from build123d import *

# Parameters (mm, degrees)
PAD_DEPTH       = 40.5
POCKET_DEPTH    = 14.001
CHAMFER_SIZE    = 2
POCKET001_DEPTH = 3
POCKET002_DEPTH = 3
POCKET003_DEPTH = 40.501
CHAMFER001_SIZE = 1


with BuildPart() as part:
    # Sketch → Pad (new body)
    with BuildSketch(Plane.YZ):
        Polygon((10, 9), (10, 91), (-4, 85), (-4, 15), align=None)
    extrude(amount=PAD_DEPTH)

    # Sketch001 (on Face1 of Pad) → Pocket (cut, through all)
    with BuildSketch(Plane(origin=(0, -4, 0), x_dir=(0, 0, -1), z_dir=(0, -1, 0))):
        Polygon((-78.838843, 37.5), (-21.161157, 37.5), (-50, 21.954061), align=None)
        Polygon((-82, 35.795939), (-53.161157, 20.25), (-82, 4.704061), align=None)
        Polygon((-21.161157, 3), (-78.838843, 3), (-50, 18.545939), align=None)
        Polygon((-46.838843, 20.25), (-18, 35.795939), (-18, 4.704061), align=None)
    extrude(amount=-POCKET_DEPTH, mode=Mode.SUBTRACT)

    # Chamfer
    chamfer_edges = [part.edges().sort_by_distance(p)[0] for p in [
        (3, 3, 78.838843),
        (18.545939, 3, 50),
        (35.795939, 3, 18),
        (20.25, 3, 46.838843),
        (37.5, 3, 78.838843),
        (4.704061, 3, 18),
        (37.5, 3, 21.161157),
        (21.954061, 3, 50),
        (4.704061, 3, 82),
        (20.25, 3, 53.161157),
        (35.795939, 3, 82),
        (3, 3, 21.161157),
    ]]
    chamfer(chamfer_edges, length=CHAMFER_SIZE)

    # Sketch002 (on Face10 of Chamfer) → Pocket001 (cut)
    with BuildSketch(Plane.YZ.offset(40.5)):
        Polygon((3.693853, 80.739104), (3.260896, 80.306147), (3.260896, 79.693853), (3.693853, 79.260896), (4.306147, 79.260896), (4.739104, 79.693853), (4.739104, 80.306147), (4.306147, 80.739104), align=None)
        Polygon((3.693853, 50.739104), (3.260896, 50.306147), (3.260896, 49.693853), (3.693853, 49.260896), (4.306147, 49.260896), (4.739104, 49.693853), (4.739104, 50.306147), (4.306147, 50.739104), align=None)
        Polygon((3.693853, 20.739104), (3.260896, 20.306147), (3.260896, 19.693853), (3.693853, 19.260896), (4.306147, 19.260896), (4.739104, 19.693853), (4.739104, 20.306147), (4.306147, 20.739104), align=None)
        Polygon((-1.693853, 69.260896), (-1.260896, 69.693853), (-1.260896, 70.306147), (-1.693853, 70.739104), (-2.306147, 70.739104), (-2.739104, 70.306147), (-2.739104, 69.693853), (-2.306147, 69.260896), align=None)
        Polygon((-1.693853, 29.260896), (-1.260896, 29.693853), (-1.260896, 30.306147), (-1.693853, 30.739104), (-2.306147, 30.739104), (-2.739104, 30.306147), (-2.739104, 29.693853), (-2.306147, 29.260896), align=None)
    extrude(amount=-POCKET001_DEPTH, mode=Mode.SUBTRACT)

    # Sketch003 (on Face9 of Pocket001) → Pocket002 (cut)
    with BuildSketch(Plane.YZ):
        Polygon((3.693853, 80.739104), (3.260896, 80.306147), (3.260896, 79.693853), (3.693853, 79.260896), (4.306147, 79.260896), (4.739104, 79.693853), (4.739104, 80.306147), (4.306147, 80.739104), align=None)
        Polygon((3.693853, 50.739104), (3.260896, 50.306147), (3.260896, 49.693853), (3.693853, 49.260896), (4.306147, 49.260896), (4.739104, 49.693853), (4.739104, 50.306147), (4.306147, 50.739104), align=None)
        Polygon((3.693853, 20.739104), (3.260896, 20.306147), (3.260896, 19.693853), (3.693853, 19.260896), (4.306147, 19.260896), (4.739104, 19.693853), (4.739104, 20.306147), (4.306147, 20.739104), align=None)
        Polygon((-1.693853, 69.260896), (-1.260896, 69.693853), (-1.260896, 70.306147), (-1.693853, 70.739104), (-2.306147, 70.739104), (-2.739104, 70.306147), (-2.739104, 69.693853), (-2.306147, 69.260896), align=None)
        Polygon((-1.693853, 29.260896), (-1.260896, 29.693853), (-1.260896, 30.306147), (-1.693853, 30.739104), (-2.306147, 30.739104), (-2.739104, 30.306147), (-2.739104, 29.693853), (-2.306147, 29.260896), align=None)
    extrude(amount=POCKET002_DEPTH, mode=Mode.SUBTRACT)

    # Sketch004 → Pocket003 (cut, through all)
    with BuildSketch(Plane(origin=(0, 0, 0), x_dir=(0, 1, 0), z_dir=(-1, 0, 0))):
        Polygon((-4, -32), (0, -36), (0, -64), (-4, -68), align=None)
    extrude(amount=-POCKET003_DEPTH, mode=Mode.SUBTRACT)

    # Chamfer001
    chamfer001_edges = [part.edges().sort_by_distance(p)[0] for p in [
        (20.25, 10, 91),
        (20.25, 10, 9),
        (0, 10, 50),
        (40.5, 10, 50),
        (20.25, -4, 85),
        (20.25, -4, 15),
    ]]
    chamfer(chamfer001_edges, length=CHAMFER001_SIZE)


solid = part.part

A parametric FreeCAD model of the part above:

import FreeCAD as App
import Part
import Sketcher
from FreeCAD import Vector
Q = App.Units.Quantity


def edges_at(feature, points):
    """Names of the edges that pass closest to the given points."""
    edges = feature.Shape.Edges
    near = lambda p: min(range(len(edges)), key=lambda i: edges[i].distToShape(Part.Vertex(*p))[0])
    return sorted({f"Edge{near(p) + 1}" for p in points})


def add_polygon(sketch, points):
    """Adds a closed chain of lines whose ends are joined by coincident constraints."""
    first, n = sketch.GeometryCount, len(points)
    for a, b in zip(points, points[1:] + points[:1]):
        sketch.addGeometry(Part.LineSegment(App.Vector(*a, 0), App.Vector(*b, 0)), False)
    for i in range(n):
        sketch.addConstraint(Sketcher.Constraint("Coincident", first + i, 2, first + (i + 1) % n, 1))

doc = App.newDocument("Part")
params = doc.addObject("Spreadsheet::Sheet", "Params")
for row, (alias, value) in enumerate([
    ("sketch1_height", "82 mm"),
    ("sketch1_height2", "70 mm"),
    ("pad1_length", "40.5 mm"),
    ("chamfer_size", "2 mm"),
    ("pocket2_length", "3 mm"),
    ("pocket3_length", "3 mm"),
    ("sketch5_height", "36 mm"),
    ("sketch5_height2", "28 mm"),
    ("chamfer2_size", "1 mm"),
], start=1):
    params.set(f"A{row}", alias)
    params.set(f"B{row}", "=" + value)
    params.setAlias(f"B{row}", alias)

body = doc.addObject("PartDesign::Body", "Body")

# Sketch on YZ plane
sketch1 = doc.addObject("Sketcher::SketchObject", "Sketch")
body.addObject(sketch1)
sketch1.AttachmentSupport = (doc.YZ_Plane, [""])
sketch1.MapMode = "FlatFace"
add_polygon(sketch1, [(10, 9), (10, 91), (-4, 85), (-4, 15)])  # lines 0-3
sketch1.addConstraint([
    Sketcher.Constraint("Vertical", 0),
    Sketcher.Constraint("Vertical", 2),
    Sketcher.Constraint("Equal", 1, 3),
    Sketcher.Constraint("DistanceY", 0, 1, 0, 2, Q("82 mm")),
    Sketcher.Constraint("DistanceY", 2, 2, 2, 1, Q("70 mm")),
    Sketcher.Constraint("DistanceX", -1, 1, 0, 2, Q("10 mm")),
    Sketcher.Constraint("DistanceY", -1, 1, 0, 2, Q("91 mm")),
    Sketcher.Constraint("DistanceX", 1, 2, -1, 1, Q("4 mm")),
])
sketch1.setExpression("Constraints[7]", "Params.sketch1_height")
sketch1.setExpression("Constraints[8]", "Params.sketch1_height2")
pad1 = doc.addObject("PartDesign::Pad", "Pad")
body.addObject(pad1)
pad1.Profile = sketch1
pad1.setExpression("Length", "Params.pad1_length")

# Sketch on XZ plane
sketch2 = doc.addObject("Sketcher::SketchObject", "Sketch001")
body.addObject(sketch2)
sketch2.AttachmentSupport = (doc.XZ_Plane, [""])
sketch2.MapMode = "FlatFace"
sketch2.AttachmentOffset = App.Placement(Vector(0, 0, 4), App.Rotation())
add_polygon(sketch2, [(38, 21), (38, 79), (22, 50)])  # lines 0-2
add_polygon(sketch2, [(20, 53), (36, 82), (5, 82)])  # lines 3-5
add_polygon(sketch2, [(3, 79), (3, 21), (19, 50)])  # lines 6-8
add_polygon(sketch2, [(36, 18), (20, 47), (5, 18)])  # lines 9-11
sketch2.addConstraint([
    Sketcher.Constraint("Vertical", 0),
    Sketcher.Constraint("Horizontal", 4),
    Sketcher.Constraint("Vertical", 6),
    Sketcher.Constraint("Horizontal", 11),
    Sketcher.Constraint("Parallel", 1, 3),
    Sketcher.Constraint("Parallel", 2, 5),
    Sketcher.Constraint("Parallel", 3, 7),
    Sketcher.Constraint("Parallel", 5, 8),
    Sketcher.Constraint("Parallel", 8, 9),
    Sketcher.Constraint("Parallel", 7, 10),
    Sketcher.Constraint("Horizontal", 2, 2, 6, 2),
    Sketcher.Constraint("Horizontal", 1, 2, 7, 2),
    Sketcher.Constraint("Horizontal", 0, 2, 8, 2),
    Sketcher.Constraint("Vertical", 5, 2, 9, 2),
    Sketcher.Constraint("Vertical", 4, 2, 10, 2),
    Sketcher.Constraint("Equal", 2, 3),
    Sketcher.Constraint("DistanceY", -1, 1, 1, 2, Q("50 mm")),
    Sketcher.Constraint("DistanceY", -1, 1, 3, 2, Q("82 mm")),
    Sketcher.Constraint("DistanceX", -1, 1, 6, 2, Q("3 mm")),
    Sketcher.Constraint("DistanceY", -1, 1, 10, 2, Q("18 mm")),
    Sketcher.Constraint("DistanceX", -1, 1, 0, 2, Q("37.5 mm")),
    Sketcher.Constraint("DistanceX", -1, 1, 5, 2, Q("20.25 mm")),
    Sketcher.Constraint("Distance", 1, Q("32.762098 mm")),
    Sketcher.Constraint("DistanceX", 4, 2, 4, 1, Q("31.091878 mm")),
])
pocket1 = doc.addObject("PartDesign::Pocket", "Pocket")
body.addObject(pocket1)
pocket1.Profile = sketch2
pocket1.Type = "ThroughAll"
doc.recompute()

chamfer = doc.addObject("PartDesign::Chamfer", "Chamfer")
body.addObject(chamfer)
chamfer.Base = (pocket1, edges_at(pocket1, [
    (3, 3, 78.839),
    (18.546, 3, 50),
    (35.796, 3, 18),
    (20.25, 3, 46.839),
    (37.5, 3, 78.839),
    (4.704, 3, 18),
    (37.5, 3, 21.161),
    (21.954, 3, 50),
    (4.704, 3, 82),
    (20.25, 3, 53.161),
    (35.796, 3, 82),
    (3, 3, 21.161),
]))
chamfer.setExpression("Size", "Params.chamfer_size")

# Sketch on YZ plane
sketch3 = doc.addObject("Sketcher::SketchObject", "Sketch002")
body.addObject(sketch3)
sketch3.AttachmentSupport = (doc.YZ_Plane, [""])
sketch3.MapMode = "FlatFace"
sketch3.AttachmentOffset = App.Placement(Vector(0, 0, 40.5), App.Rotation())
add_polygon(sketch3, [(3.7, 80.7), (3.3, 80.3), (3.3, 79.7), (3.7, 79.3), (4.3, 79.3), (4.7, 79.7), (4.7, 80.3), (4.3, 80.7)])  # lines 0-7
add_polygon(sketch3, [(3.7, 50.7), (3.3, 50.3), (3.3, 49.7), (3.7, 49.3), (4.3, 49.3), (4.7, 49.7), (4.7, 50.3), (4.3, 50.7)])  # lines 8-15
add_polygon(sketch3, [(3.7, 20.7), (3.3, 20.3), (3.3, 19.7), (3.7, 19.3), (4.3, 19.3), (4.7, 19.7), (4.7, 20.3), (4.3, 20.7)])  # lines 16-23
add_polygon(sketch3, [(-1.7, 69.3), (-1.3, 69.7), (-1.3, 70.3), (-1.7, 70.7), (-2.3, 70.7), (-2.7, 70.3), (-2.7, 69.7), (-2.3, 69.3)])  # lines 24-31
add_polygon(sketch3, [(-1.7, 29.3), (-1.3, 29.7), (-1.3, 30.3), (-1.7, 30.7), (-2.3, 30.7), (-2.7, 30.3), (-2.7, 29.7), (-2.3, 29.3)])  # lines 32-39
sketch3.addConstraint([
    Sketcher.Constraint("Vertical", 1),
    Sketcher.Constraint("Horizontal", 3),
    Sketcher.Constraint("Vertical", 5),
    Sketcher.Constraint("Horizontal", 7),
    Sketcher.Constraint("Vertical", 9),
    Sketcher.Constraint("Horizontal", 11),
    Sketcher.Constraint("Vertical", 13),
    Sketcher.Constraint("Horizontal", 15),
    Sketcher.Constraint("Vertical", 17),
    Sketcher.Constraint("Horizontal", 19),
    Sketcher.Constraint("Vertical", 21),
    Sketcher.Constraint("Horizontal", 23),
    Sketcher.Constraint("Vertical", 25),
    Sketcher.Constraint("Horizontal", 27),
    Sketcher.Constraint("Vertical", 29),
    Sketcher.Constraint("Horizontal", 31),
    Sketcher.Constraint("Vertical", 33),
    Sketcher.Constraint("Horizontal", 35),
    Sketcher.Constraint("Vertical", 37),
    Sketcher.Constraint("Horizontal", 39),
    Sketcher.Constraint("Perpendicular", 0, 2),
    Sketcher.Constraint("Perpendicular", 2, 4),
    Sketcher.Constraint("Perpendicular", 4, 6),
    Sketcher.Constraint("Perpendicular", 6, 8),
    Sketcher.Constraint("Perpendicular", 8, 10),
    Sketcher.Constraint("Perpendicular", 10, 12),
    Sketcher.Constraint("Perpendicular", 12, 14),
    Sketcher.Constraint("Perpendicular", 14, 16),
    Sketcher.Constraint("Perpendicular", 16, 18),
    Sketcher.Constraint("Perpendicular", 18, 20),
    Sketcher.Constraint("Perpendicular", 20, 22),
    Sketcher.Constraint("Perpendicular", 22, 24),
    Sketcher.Constraint("Perpendicular", 24, 26),
    Sketcher.Constraint("Perpendicular", 26, 28),
    Sketcher.Constraint("Perpendicular", 28, 30),
    Sketcher.Constraint("Perpendicular", 30, 32),
    Sketcher.Constraint("Perpendicular", 32, 34),
    Sketcher.Constraint("Perpendicular", 34, 36),
    Sketcher.Constraint("Perpendicular", 36, 38),
    Sketcher.Constraint("Horizontal", 1, 2, 4, 2),
    Sketcher.Constraint("Horizontal", 0, 2, 5, 2),
    Sketcher.Constraint("Horizontal", 9, 2, 12, 2),
    Sketcher.Constraint("Horizontal", 8, 2, 13, 2),
    Sketcher.Constraint("Horizontal", 17, 2, 20, 2),
    Sketcher.Constraint("Horizontal", 16, 2, 21, 2),
    Sketcher.Constraint("Horizontal", 25, 2, 28, 2),
    Sketcher.Constraint("Horizontal", 24, 2, 29, 2),
    Sketcher.Constraint("Horizontal", 33, 2, 36, 2),
    Sketcher.Constraint("Horizontal", 32, 2, 37, 2),
    Sketcher.Constraint("Vertical", 3, 2, 6, 2),
    Sketcher.Constraint("Vertical", 2, 2, 7, 2),
    Sketcher.Constraint("Vertical", 1, 2, 8, 2),
    Sketcher.Constraint("Vertical", 7, 2, 10, 2),
    Sketcher.Constraint("Vertical", 6, 2, 11, 2),
    Sketcher.Constraint("Vertical", 11, 2, 14, 2),
    Sketcher.Constraint("Vertical", 9, 2, 16, 2),
    Sketcher.Constraint("Vertical", 15, 2, 18, 2),
    Sketcher.Constraint("Vertical", 14, 2, 19, 2),
    Sketcher.Constraint("Vertical", 19, 2, 22, 2),
    Sketcher.Constraint("Vertical", 27, 2, 30, 2),
    Sketcher.Constraint("Vertical", 25, 2, 32, 2),
    Sketcher.Constraint("Vertical", 31, 2, 34, 2),
    Sketcher.Constraint("Vertical", 30, 2, 35, 2),
    Sketcher.Constraint("Vertical", 35, 2, 38, 2),
    Sketcher.Constraint("Equal", 23, 27),
    Sketcher.Constraint("Equal", 39, 1),
    Sketcher.Constraint("Equal", 5, 9),
    Sketcher.Constraint("Equal", 13, 17),
    Sketcher.Constraint("Equal", 21, 25),
    Sketcher.Constraint("Equal", 29, 33),
    Sketcher.Constraint("Equal", 22, 24),
    Sketcher.Constraint("DistanceY", 8, 2, 0, 2, Q("30 mm")),
    Sketcher.Constraint("DistanceY", 16, 2, 8, 2, Q("30 mm")),
    Sketcher.Constraint("DistanceY", 24, 2, 1, 2, Q("10 mm")),
    Sketcher.Constraint("DistanceX", 24, 2, 4, 2, Q("6 mm")),
    Sketcher.Constraint("DistanceY", 17, 2, 32, 2, Q("10 mm")),
    Sketcher.Constraint("DistanceX", 3, 1, 3, 2, Q("0.612294 mm")),
    Sketcher.Constraint("DistanceY", 2, 2, 0, 2, Q("1.045251 mm")),
    Sketcher.Constraint("DistanceX", -1, 1, 0, 2, Q("3.260896 mm")),
    Sketcher.Constraint("DistanceY", -1, 1, 0, 2, Q("80.306147 mm")),
])
pocket2 = doc.addObject("PartDesign::Pocket", "Pocket001")
body.addObject(pocket2)
pocket2.Profile = sketch3
pocket2.setExpression("Length", "Params.pocket2_length")

# Sketch on YZ plane
sketch4 = doc.addObject("Sketcher::SketchObject", "Sketch003")
body.addObject(sketch4)
sketch4.AttachmentSupport = (doc.YZ_Plane, [""])
sketch4.MapMode = "FlatFace"
add_polygon(sketch4, [(3.7, 80.7), (3.3, 80.3), (3.3, 79.7), (3.7, 79.3), (4.3, 79.3), (4.7, 79.7), (4.7, 80.3), (4.3, 80.7)])  # lines 0-7
add_polygon(sketch4, [(3.7, 50.7), (3.3, 50.3), (3.3, 49.7), (3.7, 49.3), (4.3, 49.3), (4.7, 49.7), (4.7, 50.3), (4.3, 50.7)])  # lines 8-15
add_polygon(sketch4, [(3.7, 20.7), (3.3, 20.3), (3.3, 19.7), (3.7, 19.3), (4.3, 19.3), (4.7, 19.7), (4.7, 20.3), (4.3, 20.7)])  # lines 16-23
add_polygon(sketch4, [(-1.7, 69.3), (-1.3, 69.7), (-1.3, 70.3), (-1.7, 70.7), (-2.3, 70.7), (-2.7, 70.3), (-2.7, 69.7), (-2.3, 69.3)])  # lines 24-31
add_polygon(sketch4, [(-1.7, 29.3), (-1.3, 29.7), (-1.3, 30.3), (-1.7, 30.7), (-2.3, 30.7), (-2.7, 30.3), (-2.7, 29.7), (-2.3, 29.3)])  # lines 32-39
sketch4.addConstraint([
    Sketcher.Constraint("Vertical", 1),
    Sketcher.Constraint("Horizontal", 3),
    Sketcher.Constraint("Vertical", 5),
    Sketcher.Constraint("Horizontal", 7),
    Sketcher.Constraint("Vertical", 9),
    Sketcher.Constraint("Horizontal", 11),
    Sketcher.Constraint("Vertical", 13),
    Sketcher.Constraint("Horizontal", 15),
    Sketcher.Constraint("Vertical", 17),
    Sketcher.Constraint("Horizontal", 19),
    Sketcher.Constraint("Vertical", 21),
    Sketcher.Constraint("Horizontal", 23),
    Sketcher.Constraint("Vertical", 25),
    Sketcher.Constraint("Horizontal", 27),
    Sketcher.Constraint("Vertical", 29),
    Sketcher.Constraint("Horizontal", 31),
    Sketcher.Constraint("Vertical", 33),
    Sketcher.Constraint("Horizontal", 35),
    Sketcher.Constraint("Vertical", 37),
    Sketcher.Constraint("Horizontal", 39),
    Sketcher.Constraint("Perpendicular", 0, 2),
    Sketcher.Constraint("Perpendicular", 2, 4),
    Sketcher.Constraint("Perpendicular", 4, 6),
    Sketcher.Constraint("Perpendicular", 6, 8),
    Sketcher.Constraint("Perpendicular", 8, 10),
    Sketcher.Constraint("Perpendicular", 10, 12),
    Sketcher.Constraint("Perpendicular", 12, 14),
    Sketcher.Constraint("Perpendicular", 14, 16),
    Sketcher.Constraint("Perpendicular", 16, 18),
    Sketcher.Constraint("Perpendicular", 18, 20),
    Sketcher.Constraint("Perpendicular", 20, 22),
    Sketcher.Constraint("Perpendicular", 22, 24),
    Sketcher.Constraint("Perpendicular", 24, 26),
    Sketcher.Constraint("Perpendicular", 26, 28),
    Sketcher.Constraint("Perpendicular", 28, 30),
    Sketcher.Constraint("Perpendicular", 30, 32),
    Sketcher.Constraint("Perpendicular", 32, 34),
    Sketcher.Constraint("Perpendicular", 34, 36),
    Sketcher.Constraint("Perpendicular", 36, 38),
    Sketcher.Constraint("Horizontal", 1, 2, 4, 2),
    Sketcher.Constraint("Horizontal", 0, 2, 5, 2),
    Sketcher.Constraint("Horizontal", 9, 2, 12, 2),
    Sketcher.Constraint("Horizontal", 8, 2, 13, 2),
    Sketcher.Constraint("Horizontal", 17, 2, 20, 2),
    Sketcher.Constraint("Horizontal", 16, 2, 21, 2),
    Sketcher.Constraint("Horizontal", 25, 2, 28, 2),
    Sketcher.Constraint("Horizontal", 24, 2, 29, 2),
    Sketcher.Constraint("Horizontal", 33, 2, 36, 2),
    Sketcher.Constraint("Horizontal", 32, 2, 37, 2),
    Sketcher.Constraint("Vertical", 3, 2, 6, 2),
    Sketcher.Constraint("Vertical", 2, 2, 7, 2),
    Sketcher.Constraint("Vertical", 1, 2, 8, 2),
    Sketcher.Constraint("Vertical", 7, 2, 10, 2),
    Sketcher.Constraint("Vertical", 6, 2, 11, 2),
    Sketcher.Constraint("Vertical", 11, 2, 14, 2),
    Sketcher.Constraint("Vertical", 9, 2, 16, 2),
    Sketcher.Constraint("Vertical", 15, 2, 18, 2),
    Sketcher.Constraint("Vertical", 14, 2, 19, 2),
    Sketcher.Constraint("Vertical", 19, 2, 22, 2),
    Sketcher.Constraint("Vertical", 27, 2, 30, 2),
    Sketcher.Constraint("Vertical", 25, 2, 32, 2),
    Sketcher.Constraint("Vertical", 31, 2, 34, 2),
    Sketcher.Constraint("Vertical", 30, 2, 35, 2),
    Sketcher.Constraint("Vertical", 35, 2, 38, 2),
    Sketcher.Constraint("Equal", 23, 27),
    Sketcher.Constraint("Equal", 39, 1),
    Sketcher.Constraint("Equal", 5, 9),
    Sketcher.Constraint("Equal", 13, 17),
    Sketcher.Constraint("Equal", 21, 25),
    Sketcher.Constraint("Equal", 29, 33),
    Sketcher.Constraint("Equal", 22, 24),
    Sketcher.Constraint("DistanceY", 8, 2, 0, 2, Q("30 mm")),
    Sketcher.Constraint("DistanceY", 16, 2, 8, 2, Q("30 mm")),
    Sketcher.Constraint("DistanceY", 24, 2, 1, 2, Q("10 mm")),
    Sketcher.Constraint("DistanceX", 24, 2, 4, 2, Q("6 mm")),
    Sketcher.Constraint("DistanceY", 17, 2, 32, 2, Q("10 mm")),
    Sketcher.Constraint("DistanceX", 3, 1, 3, 2, Q("0.612294 mm")),
    Sketcher.Constraint("DistanceY", 2, 2, 0, 2, Q("1.045251 mm")),
    Sketcher.Constraint("DistanceX", -1, 1, 0, 2, Q("3.260896 mm")),
    Sketcher.Constraint("DistanceY", -1, 1, 0, 2, Q("80.306147 mm")),
])
pocket3 = doc.addObject("PartDesign::Pocket", "Pocket002")
body.addObject(pocket3)
pocket3.Profile = sketch4
pocket3.setExpression("Length", "Params.pocket3_length")
pocket3.Reversed = True

# Sketch on YZ plane
sketch5 = doc.addObject("Sketcher::SketchObject", "Sketch004")
body.addObject(sketch5)
sketch5.AttachmentSupport = (doc.YZ_Plane, [""])
sketch5.MapMode = "FlatFace"
add_polygon(sketch5, [(0, 36), (-4, 32), (-4, 68), (0, 64)])  # lines 0-3
sketch5.addConstraint([
    Sketcher.Constraint("Vertical", 1),
    Sketcher.Constraint("Vertical", 3),
    Sketcher.Constraint("PointOnObject", 2, 2, -2),
    Sketcher.Constraint("Perpendicular", 0, 2),
    Sketcher.Constraint("Equal", 0, 2),
    Sketcher.Constraint("DistanceY", 1, 1, 1, 2, Q("36 mm")),
    Sketcher.Constraint("DistanceY", 3, 2, 3, 1, Q("28 mm")),
    Sketcher.Constraint("DistanceY", -1, 1, 0, 2, Q("32 mm")),
])
sketch5.setExpression("Constraints[9]", "Params.sketch5_height")
sketch5.setExpression("Constraints[10]", "Params.sketch5_height2")
pocket4 = doc.addObject("PartDesign::Pocket", "Pocket003")
body.addObject(pocket4)
pocket4.Profile = sketch5
pocket4.Type = "ThroughAll"
pocket4.Reversed = True
doc.recompute()

chamfer2 = doc.addObject("PartDesign::Chamfer", "Chamfer001")
body.addObject(chamfer2)
chamfer2.Base = (pocket4, edges_at(pocket4, [
    (20.25, 10, 91),
    (20.25, 10, 9),
    (0, 10, 50),
    (40.5, 10, 50),
    (20.25, -4, 85),
    (20.25, -4, 15),
]))
chamfer2.setExpression("Size", "Params.chamfer2_size")

doc.recompute()
